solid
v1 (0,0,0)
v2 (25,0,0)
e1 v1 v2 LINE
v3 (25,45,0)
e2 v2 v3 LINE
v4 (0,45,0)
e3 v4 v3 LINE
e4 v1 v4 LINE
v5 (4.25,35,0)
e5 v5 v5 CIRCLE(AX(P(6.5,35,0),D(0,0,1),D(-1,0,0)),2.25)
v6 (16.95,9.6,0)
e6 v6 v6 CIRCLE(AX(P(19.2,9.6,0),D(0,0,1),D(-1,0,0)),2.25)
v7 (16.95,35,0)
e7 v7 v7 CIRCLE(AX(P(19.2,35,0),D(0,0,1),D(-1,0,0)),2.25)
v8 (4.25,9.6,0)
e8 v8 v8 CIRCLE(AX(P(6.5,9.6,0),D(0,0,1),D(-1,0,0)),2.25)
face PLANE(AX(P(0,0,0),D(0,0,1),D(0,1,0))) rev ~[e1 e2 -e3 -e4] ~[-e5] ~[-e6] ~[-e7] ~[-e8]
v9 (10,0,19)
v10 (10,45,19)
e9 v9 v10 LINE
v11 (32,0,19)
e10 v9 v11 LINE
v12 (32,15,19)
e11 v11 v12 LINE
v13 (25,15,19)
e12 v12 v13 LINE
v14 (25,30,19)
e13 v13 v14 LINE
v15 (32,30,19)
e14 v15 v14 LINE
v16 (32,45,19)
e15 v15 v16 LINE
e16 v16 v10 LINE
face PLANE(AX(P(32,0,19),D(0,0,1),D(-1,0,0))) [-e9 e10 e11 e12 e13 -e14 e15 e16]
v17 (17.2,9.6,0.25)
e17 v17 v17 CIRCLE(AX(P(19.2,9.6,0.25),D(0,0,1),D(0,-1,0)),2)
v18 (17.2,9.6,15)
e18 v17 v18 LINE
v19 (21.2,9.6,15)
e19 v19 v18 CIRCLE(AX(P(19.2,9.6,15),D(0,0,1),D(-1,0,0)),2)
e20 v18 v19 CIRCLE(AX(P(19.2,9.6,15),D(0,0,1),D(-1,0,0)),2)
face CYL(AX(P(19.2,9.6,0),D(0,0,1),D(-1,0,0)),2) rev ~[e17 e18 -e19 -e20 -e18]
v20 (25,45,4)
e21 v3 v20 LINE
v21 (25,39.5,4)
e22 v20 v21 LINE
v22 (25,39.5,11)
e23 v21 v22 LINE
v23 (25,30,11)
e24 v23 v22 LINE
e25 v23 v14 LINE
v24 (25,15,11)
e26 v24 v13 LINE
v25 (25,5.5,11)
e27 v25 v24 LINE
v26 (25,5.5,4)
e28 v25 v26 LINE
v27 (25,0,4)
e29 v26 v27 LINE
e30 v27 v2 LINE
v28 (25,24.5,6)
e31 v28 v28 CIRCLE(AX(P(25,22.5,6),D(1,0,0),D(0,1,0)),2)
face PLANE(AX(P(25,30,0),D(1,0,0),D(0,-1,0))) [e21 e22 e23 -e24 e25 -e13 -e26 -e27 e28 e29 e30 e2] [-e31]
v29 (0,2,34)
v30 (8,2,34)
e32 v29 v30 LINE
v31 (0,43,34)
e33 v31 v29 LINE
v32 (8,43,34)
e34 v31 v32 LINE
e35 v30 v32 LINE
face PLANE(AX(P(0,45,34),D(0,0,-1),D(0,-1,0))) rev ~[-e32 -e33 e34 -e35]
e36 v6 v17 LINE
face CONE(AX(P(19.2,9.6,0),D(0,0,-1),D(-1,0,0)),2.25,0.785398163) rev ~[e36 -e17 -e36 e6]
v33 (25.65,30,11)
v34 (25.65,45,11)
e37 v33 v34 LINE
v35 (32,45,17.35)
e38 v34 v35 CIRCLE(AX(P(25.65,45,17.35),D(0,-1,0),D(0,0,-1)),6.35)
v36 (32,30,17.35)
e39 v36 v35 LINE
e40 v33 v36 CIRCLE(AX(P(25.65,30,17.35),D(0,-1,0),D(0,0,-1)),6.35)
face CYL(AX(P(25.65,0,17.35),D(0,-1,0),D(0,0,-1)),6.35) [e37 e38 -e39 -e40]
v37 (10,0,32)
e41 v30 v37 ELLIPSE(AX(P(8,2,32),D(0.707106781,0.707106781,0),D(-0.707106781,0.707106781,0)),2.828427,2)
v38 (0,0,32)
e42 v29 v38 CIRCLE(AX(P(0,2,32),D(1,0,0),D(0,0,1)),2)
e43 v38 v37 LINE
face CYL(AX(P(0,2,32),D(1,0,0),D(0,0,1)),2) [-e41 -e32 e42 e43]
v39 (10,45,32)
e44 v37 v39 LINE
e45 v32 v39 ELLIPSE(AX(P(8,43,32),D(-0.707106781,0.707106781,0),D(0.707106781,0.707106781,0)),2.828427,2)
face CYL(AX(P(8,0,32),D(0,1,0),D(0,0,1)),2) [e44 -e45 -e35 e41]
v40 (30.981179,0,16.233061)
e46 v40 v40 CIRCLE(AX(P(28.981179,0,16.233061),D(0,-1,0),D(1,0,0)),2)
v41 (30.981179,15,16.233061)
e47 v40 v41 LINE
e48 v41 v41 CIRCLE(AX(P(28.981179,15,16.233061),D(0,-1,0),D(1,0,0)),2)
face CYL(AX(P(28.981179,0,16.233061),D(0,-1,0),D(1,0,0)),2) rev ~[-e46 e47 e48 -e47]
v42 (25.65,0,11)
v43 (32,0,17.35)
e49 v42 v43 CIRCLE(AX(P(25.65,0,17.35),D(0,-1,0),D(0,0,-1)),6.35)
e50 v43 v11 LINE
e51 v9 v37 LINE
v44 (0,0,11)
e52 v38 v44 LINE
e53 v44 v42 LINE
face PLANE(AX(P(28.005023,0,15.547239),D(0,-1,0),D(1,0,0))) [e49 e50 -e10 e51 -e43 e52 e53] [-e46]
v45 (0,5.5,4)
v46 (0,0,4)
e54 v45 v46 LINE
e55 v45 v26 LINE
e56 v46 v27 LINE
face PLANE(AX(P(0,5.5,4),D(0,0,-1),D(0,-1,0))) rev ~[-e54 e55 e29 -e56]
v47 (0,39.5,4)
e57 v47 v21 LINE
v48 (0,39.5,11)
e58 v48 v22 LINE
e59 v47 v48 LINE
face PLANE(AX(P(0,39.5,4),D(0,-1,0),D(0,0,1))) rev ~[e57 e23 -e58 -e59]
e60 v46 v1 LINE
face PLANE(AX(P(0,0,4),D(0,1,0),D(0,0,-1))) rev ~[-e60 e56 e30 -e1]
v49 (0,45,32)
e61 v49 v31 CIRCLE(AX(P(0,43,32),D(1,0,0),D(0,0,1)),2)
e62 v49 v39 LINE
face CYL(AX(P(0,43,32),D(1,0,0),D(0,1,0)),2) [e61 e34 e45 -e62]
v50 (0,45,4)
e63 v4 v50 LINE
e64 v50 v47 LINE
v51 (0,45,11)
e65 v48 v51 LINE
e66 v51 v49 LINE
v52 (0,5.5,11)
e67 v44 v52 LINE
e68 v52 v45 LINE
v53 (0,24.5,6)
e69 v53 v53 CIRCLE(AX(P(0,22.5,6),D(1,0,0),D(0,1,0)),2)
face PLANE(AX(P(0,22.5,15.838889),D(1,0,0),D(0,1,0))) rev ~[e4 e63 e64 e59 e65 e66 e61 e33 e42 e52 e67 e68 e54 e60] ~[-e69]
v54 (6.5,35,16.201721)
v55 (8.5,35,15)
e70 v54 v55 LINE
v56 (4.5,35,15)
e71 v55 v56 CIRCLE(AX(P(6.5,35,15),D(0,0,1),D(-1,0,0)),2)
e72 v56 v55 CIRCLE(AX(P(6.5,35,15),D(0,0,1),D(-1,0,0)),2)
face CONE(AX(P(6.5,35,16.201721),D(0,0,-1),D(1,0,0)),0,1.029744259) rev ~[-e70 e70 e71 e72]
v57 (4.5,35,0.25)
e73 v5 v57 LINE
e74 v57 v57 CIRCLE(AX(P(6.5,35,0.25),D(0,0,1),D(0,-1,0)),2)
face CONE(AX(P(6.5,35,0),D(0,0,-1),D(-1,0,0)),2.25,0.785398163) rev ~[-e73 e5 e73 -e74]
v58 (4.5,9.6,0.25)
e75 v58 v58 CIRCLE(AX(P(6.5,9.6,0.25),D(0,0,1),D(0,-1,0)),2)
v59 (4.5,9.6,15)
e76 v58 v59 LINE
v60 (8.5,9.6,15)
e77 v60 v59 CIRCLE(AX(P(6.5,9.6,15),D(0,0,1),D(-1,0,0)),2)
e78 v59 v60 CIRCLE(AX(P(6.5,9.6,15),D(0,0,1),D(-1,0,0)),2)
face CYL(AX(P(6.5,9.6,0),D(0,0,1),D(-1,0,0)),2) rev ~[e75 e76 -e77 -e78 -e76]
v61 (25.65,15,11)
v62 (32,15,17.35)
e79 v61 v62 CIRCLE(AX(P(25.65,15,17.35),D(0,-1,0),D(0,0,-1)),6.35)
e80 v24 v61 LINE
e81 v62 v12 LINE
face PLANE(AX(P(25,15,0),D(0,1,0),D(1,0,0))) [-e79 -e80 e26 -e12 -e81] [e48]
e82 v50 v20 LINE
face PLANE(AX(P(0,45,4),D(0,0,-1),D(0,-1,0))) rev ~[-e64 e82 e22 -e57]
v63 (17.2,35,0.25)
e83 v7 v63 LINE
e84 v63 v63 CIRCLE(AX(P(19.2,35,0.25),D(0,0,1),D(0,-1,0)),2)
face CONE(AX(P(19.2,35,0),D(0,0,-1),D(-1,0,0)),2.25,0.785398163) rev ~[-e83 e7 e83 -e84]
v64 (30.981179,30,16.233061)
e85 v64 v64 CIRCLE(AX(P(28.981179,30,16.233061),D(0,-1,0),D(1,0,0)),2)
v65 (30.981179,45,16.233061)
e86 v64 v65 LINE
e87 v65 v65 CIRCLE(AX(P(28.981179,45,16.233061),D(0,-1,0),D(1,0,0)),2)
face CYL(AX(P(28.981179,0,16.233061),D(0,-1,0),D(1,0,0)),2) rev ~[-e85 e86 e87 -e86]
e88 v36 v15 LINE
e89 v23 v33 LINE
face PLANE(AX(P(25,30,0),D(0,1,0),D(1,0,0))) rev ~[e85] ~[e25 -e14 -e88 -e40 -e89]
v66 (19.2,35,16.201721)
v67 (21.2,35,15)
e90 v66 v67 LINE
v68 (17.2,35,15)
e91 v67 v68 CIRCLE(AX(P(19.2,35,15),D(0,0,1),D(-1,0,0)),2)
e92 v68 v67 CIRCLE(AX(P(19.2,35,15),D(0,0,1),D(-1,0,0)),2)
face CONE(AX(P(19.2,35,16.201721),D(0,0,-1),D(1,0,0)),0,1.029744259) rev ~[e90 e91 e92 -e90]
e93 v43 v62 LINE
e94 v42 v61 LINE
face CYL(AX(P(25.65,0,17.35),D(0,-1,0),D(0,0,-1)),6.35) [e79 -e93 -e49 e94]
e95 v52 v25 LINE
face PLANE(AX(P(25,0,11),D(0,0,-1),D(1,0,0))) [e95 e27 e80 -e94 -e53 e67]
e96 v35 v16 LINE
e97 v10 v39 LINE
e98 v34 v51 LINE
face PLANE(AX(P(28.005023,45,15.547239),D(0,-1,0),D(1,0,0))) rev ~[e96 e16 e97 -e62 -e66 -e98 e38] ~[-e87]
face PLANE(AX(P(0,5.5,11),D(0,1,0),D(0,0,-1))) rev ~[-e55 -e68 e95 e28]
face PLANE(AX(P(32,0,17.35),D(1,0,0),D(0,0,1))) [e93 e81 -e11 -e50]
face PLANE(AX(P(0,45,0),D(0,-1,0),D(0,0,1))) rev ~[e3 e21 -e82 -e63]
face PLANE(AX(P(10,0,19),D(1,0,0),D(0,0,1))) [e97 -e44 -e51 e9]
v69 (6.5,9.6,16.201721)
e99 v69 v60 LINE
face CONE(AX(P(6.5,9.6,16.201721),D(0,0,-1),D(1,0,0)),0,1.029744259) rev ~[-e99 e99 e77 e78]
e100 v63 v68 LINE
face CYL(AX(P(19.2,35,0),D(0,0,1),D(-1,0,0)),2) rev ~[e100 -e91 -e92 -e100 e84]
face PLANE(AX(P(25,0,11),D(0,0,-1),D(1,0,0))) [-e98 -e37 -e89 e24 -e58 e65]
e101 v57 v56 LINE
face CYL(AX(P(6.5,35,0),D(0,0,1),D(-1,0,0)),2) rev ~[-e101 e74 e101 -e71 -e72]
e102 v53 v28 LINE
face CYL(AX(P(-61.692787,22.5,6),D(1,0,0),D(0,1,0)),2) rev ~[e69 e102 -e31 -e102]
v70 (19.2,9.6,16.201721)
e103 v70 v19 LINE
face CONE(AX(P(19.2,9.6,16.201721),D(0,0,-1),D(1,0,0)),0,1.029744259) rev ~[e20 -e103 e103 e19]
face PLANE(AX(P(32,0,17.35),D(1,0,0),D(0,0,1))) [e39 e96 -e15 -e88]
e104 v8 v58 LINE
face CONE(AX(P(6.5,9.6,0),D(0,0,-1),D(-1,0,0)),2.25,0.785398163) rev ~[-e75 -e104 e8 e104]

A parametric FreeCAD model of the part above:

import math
import FreeCAD as App
import Part
import Sketcher

V = App.Vector


def edges_at(feature, points):
    """Names of the edges that pass closest to the given points."""
    edges = feature.Shape.Edges
    near = lambda p: min(range(len(edges)), key=lambda i: edges[i].distToShape(Part.Vertex(*p))[0])
    return sorted({f"Edge{near(p) + 1}" for p in points})

doc = App.newDocument("Part")
params = doc.addObject("Spreadsheet::Sheet", "Params")
for row, (alias, value) in enumerate([
    ("sketch1_width", "45 mm"),
    ("sketch1_height", "4 mm"),
    ("sketch1_height2", "7 mm"),
    ("sketch1_height3", "23 mm"),
    ("sketch1_width2", "5.5 mm"),
    ("pad1_length", "25 mm"),
    ("sketch2_width", "15 mm"),
    ("fillet_radius", "2 mm"),
    ("sketch3_diameter", "4 mm"),
    ("hole_diameter", "4 mm"),
    ("sketch4_diameter", "4 mm"),
    ("hole2_diameter", "4 mm"),
    ("hole2_depth", "15 mm"),
    ("hole2_csink_diameter", "4.5 mm"),
    ("sketch5_diameter", "4 mm"),
    ("sketch5_width", "7 mm"),
    ("sketch5_height", "8 mm"),
    ("sketch5_radius", "6.35 mm"),
    ("pad2_length", "45 mm"),
    ("sketch6_height", "15 mm"),
    ("pocket2_length", "25.4 mm"),
], start=1):
    params.set(f"A{row}", alias)
    params.set(f"B{row}", "=" + value)
    params.setAlias(f"B{row}", alias)

body = doc.addObject("PartDesign::Body", "Body")

sketch1 = body.newObject("Sketcher::SketchObject", "Sketch")
sketch1.AttachmentSupport = (doc.getObject("YZ_Plane"), [""])
sketch1.MapMode = "FlatFace"
sketch1.addGeometry(Part.LineSegment(V(0, 4, 0), V(0, 0, 0)), False)
sketch1.addGeometry(Part.LineSegment(V(0, 0, 0), V(45, 0, 0)), False)
sketch1.addGeometry(Part.LineSegment(V(45, 0, 0), V(45, 4, 0)), False)
sketch1.addGeometry(Part.LineSegment(V(45, 4, 0), V(39.5, 4, 0)), False)
sketch1.addGeometry(Part.LineSegment(V(39.5, 4, 0), V(39.5, 11, 0)), False)
sketch1.addGeometry(Part.LineSegment(V(39.5, 11, 0), V(45, 11, 0)), False)
sketch1.addGeometry(Part.LineSegment(V(45, 11, 0), V(45, 34, 0)), False)
sketch1.addGeometry(Part.LineSegment(V(45, 34, 0), V(0, 34, 0)), False)
sketch1.addGeometry(Part.LineSegment(V(0, 34, 0), V(0, 11, 0)), False)
sketch1.addGeometry(Part.LineSegment(V(0, 11, 0), V(5.5, 11, 0)), False)
sketch1.addGeometry(Part.LineSegment(V(5.5, 11, 0), V(5.5, 4, 0)), False)
sketch1.addGeometry(Part.LineSegment(V(5.5, 4, 0), V(0, 4, 0)), False)
sketch1.addConstraint(Sketcher.Constraint("Coincident", 0, 2, 1, 1))
sketch1.addConstraint(Sketcher.Constraint("Coincident", 1, 2, 2, 1))
sketch1.addConstraint(Sketcher.Constraint("Coincident", 2, 2, 3, 1))
sketch1.addConstraint(Sketcher.Constraint("Coincident", 3, 2, 4, 1))
sketch1.addConstraint(Sketcher.Constraint("Coincident", 4, 2, 5, 1))
sketch1.addConstraint(Sketcher.Constraint("Coincident", 5, 2, 6, 1))
sketch1.addConstraint(Sketcher.Constraint("Coincident", 6, 2, 7, 1))
sketch1.addConstraint(Sketcher.Constraint("Coincident", 7, 2, 8, 1))
sketch1.addConstraint(Sketcher.Constraint("Coincident", 8, 2, 9, 1))
sketch1.addConstraint(Sketcher.Constraint("Coincident", 9, 2, 10, 1))
sketch1.addConstraint(Sketcher.Constraint("Coincident", 10, 2, 11, 1))
sketch1.addConstraint(Sketcher.Constraint("Coincident", 11, 2, 0, 1))
sketch1.addConstraint(Sketcher.Constraint("Vertical", 0))
sketch1.addConstraint(Sketcher.Constraint("Horizontal", 1))
sketch1.addConstraint(Sketcher.Constraint("Vertical", 2))
sketch1.addConstraint(Sketcher.Constraint("Horizontal", 3))
sketch1.addConstraint(Sketcher.Constraint("Vertical", 4))
sketch1.addConstraint(Sketcher.Constraint("Horizontal", 5))
sketch1.addConstraint(Sketcher.Constraint("Vertical", 6))
sketch1.addConstraint(Sketcher.Constraint("Horizontal", 7))
sketch1.addConstraint(Sketcher.Constraint("Vertical", 8))
sketch1.addConstraint(Sketcher.Constraint("Horizontal", 9))
sketch1.addConstraint(Sketcher.Constraint("Vertical", 10))
sketch1.addConstraint(Sketcher.Constraint("Horizontal", 11))
sketch1.addConstraint(Sketcher.Constraint("Coincident", 0, 2, -1, 1))
sketch1.addConstraint(Sketcher.Constraint("PointOnObject", 7, 2, -2))
sketch1.addConstraint(Sketcher.Constraint("Horizontal", 5, 2, 8, 2))
sketch1.addConstraint(Sketcher.Constraint("Horizontal", 3, 2, 10, 2))
sketch1.addConstraint(Sketcher.Constraint("Vertical", 2, 2, 5, 2))
sketch1.addConstraint(Sketcher.Constraint("Equal", 5, 9))
sketch1.addConstraint(Sketcher.Constraint("DistanceX", 1, 1, 1, 2, 45.0))
sketch1.addConstraint(Sketcher.Constraint("DistanceY", 0, 2, 0, 1, 4.0))
sketch1.addConstraint(Sketcher.Constraint("DistanceY", 4, 1, 4, 2, 7.0))
sketch1.addConstraint(Sketcher.Constraint("DistanceY", 6, 1, 6, 2, 23.0))
sketch1.addConstraint(Sketcher.Constraint("DistanceX", 3, 2, 3, 1, 5.5))
sketch1.setExpression("Constraints[30]", "Params.sketch1_width")
sketch1.setExpression("Constraints[31]", "Params.sketch1_height")
sketch1.setExpression("Constraints[32]", "Params.sketch1_height2")
sketch1.setExpression("Constraints[33]", "Params.sketch1_height3")
sketch1.setExpression("Constraints[34]", "Params.sketch1_width2")
pad1 = body.newObject("PartDesign::Pad", "Pad")
pad1.Profile = sketch1
pad1.setExpression("Length", "Params.pad1_length")

sketch2 = body.newObject("Sketcher::SketchObject", "Sketch001")
sketch2.AttachmentSupport = (doc.getObject("XZ_Plane"), [""])
sketch2.MapMode = "FlatFace"
sketch2.addGeometry(Part.LineSegment(V(10, 34, 0), V(10, 19, 0)), False)
sketch2.addGeometry(Part.LineSegment(V(10, 19, 0), V(25, 19, 0)), False)
sketch2.addGeometry(Part.LineSegment(V(25, 19, 0), V(25, 34, 0)), False)
sketch2.addGeometry(Part.LineSegment(V(25, 34, 0), V(10, 34, 0)), False)
sketch2.addConstraint(Sketcher.Constraint("Coincident", 0, 2, 1, 1))
sketch2.addConstraint(Sketcher.Constraint("Coincident", 1, 2, 2, 1))
sketch2.addConstraint(Sketcher.Constraint("Coincident", 2, 2, 3, 1))
sketch2.addConstraint(Sketcher.Constraint("Coincident", 3, 2, 0, 1))
sketch2.addConstraint(Sketcher.Constraint("Vertical", 0))
sketch2.addConstraint(Sketcher.Constraint("Horizontal", 1))
sketch2.addConstraint(Sketcher.Constraint("Vertical", 2))
sketch2.addConstraint(Sketcher.Constraint("Horizontal", 3))
sketch2.addConstraint(Sketcher.Constraint("Equal", 3, 0))
sketch2.addConstraint(Sketcher.Constraint("DistanceX", 1, 1, 1, 2, 15.0))
sketch2.addConstraint(Sketcher.Constraint("DistanceX", -1, 1, 0, 2, 10.0))
sketch2.addConstraint(Sketcher.Constraint("DistanceY", -1, 1, 0, 2, 19.0))
sketch2.setExpression("Constraints[9]", "Params.sketch2_width")
pocket1 = body.newObject("PartDesign::Pocket", "Pocket")
pocket1.Profile = sketch2
pocket1.Type = "ThroughAll"
doc.recompute()

fillet = body.newObject("PartDesign::Fillet", "Fillet")
fillet.Base = (pocket1, edges_at(pocket1, [(10, 22.5, 34), (5, 0, 34), (5, 45, 34)]))
fillet.setExpression("Radius", "Params.fillet_radius")

sketch3 = body.newObject("Sketcher::SketchObject", "Sketch002")
sketch3.AttachmentSupport = (doc.getObject("YZ_Plane"), [""])
sketch3.MapMode = "FlatFace"
sketch3.addGeometry(Part.Circle(V(22.5, 6, 0), V(0, 0, 1), 2), False)
sketch3.addConstraint(Sketcher.Constraint("Diameter", 0, 4.0))
sketch3.addConstraint(Sketcher.Constraint("DistanceY", -1, 1, 0, 3, 6.0))
sketch3.addConstraint(Sketcher.Constraint("DistanceX", -1, 1, 0, 3, 22.5))
sketch3.setExpression("Constraints[0]", "Params.sketch3_diameter")
doc.recompute()
hole = body.newObject("PartDesign::Hole", "Hole")
hole.Profile = sketch3
hole.ThreadType = "None"
hole.setExpression("Diameter", "Params.hole_diameter")
hole.DepthType = "ThroughAll"
hole.Reversed = True

sketch4 = body.newObject("Sketcher::SketchObject", "Sketch003")
sketch4.AttachmentSupport = (doc.getObject("XY_Plane"), [""])
sketch4.MapMode = "FlatFace"
sketch4.addGeometry(Part.Circle(V(19.2, 9.6, 0), V(0, 0, 1), 2), False)
sketch4.addGeometry(Part.Circle(V(6.5, 9.6, 0), V(0, 0, 1), 2), False)
sketch4.addGeometry(Part.Circle(V(6.5, 35, 0), V(0, 0, 1), 2), False)
sketch4.addGeometry(Part.Circle(V(19.2, 35, 0), V(0, 0, 1), 2), False)
sketch4.addConstraint(Sketcher.Constraint("Equal", 0, 1))
sketch4.addConstraint(Sketcher.Constraint("Equal", 1, 2))
sketch4.addConstraint(Sketcher.Constraint("Equal", 2, 3))
sketch4.addConstraint(Sketcher.Constraint("Horizontal", 0, 3, 1, 3))
sketch4.addConstraint(Sketcher.Constraint("Horizontal", 2, 3, 3, 3))
sketch4.addConstraint(Sketcher.Constraint("Vertical", 1, 3, 2, 3))
sketch4.addConstraint(Sketcher.Constraint("Vertical", 0, 3, 3, 3))
sketch4.addConstraint(Sketcher.Constraint("Diameter", 0, 4.0))
sketch4.addConstraint(Sketcher.Constraint("DistanceY", -1, 1, 2, 3, 35.0))
sketch4.addConstraint(Sketcher.Constraint("DistanceX", -1, 1, 0, 3, 19.2))
sketch4.addConstraint(Sketcher.Constraint("DistanceY", -1, 1, 0, 3, 9.6))
sketch4.addConstraint(Sketcher.Constraint("DistanceX", -1, 1, 1, 3, 6.5))
sketch4.setExpression("Constraints[7]", "Params.sketch4_diameter")
doc.recompute()
hole2 = body.newObject("PartDesign::Hole", "Hole001")
hole2.Profile = sketch4
hole2.ThreadType = "None"
hole2.setExpression("Diameter", "Params.hole2_diameter")
hole2.DepthType = "Dimension"
hole2.setExpression("Depth", "Params.hole2_depth")
hole2.DrillPoint = "Angled"
hole2.DrillPointAngle = 118
hole2.HoleCutType = "Countersink"
hole2.setExpression("HoleCutDiameter", "Params.hole2_csink_diameter")
hole2.HoleCutCountersinkAngle = 90
hole2.Reversed = True

sketch5 = body.newObject("Sketcher::SketchObject", "Sketch004")
sketch5.AttachmentSupport = (doc.getObject("XZ_Plane"), [""])
sketch5.MapMode = "FlatFace"
sketch5.addGeometry(Part.LineSegment(V(32, 19, 0), V(25, 19, 0)), False)
sketch5.addGeometry(Part.LineSegment(V(25, 19, 0), V(25, 11, 0)), False)
sketch5.addGeometry(Part.LineSegment(V(25, 11, 0), V(25.6, 11, 0)), False)
sketch5.addGeometry(Part.ArcOfCircle(Part.Circle(V(25.6, 17.4, 0), V(0, 0, 1), 6.3), math.radians(-90), math.radians(0)), False)
sketch5.addGeometry(Part.LineSegment(V(32, 17.4, 0), V(32, 19, 0)), False)
sketch5.addGeometry(Part.Circle(V(29, 16.2, 0), V(0, 0, 1), 2), False)
sketch5.addConstraint(Sketcher.Constraint("Coincident", 0, 2, 1, 1))
sketch5.addConstraint(Sketcher.Constraint("Coincident", 1, 2, 2, 1))
sketch5.addConstraint(Sketcher.Constraint("Tangent", 2, 2, 3, 1))
sketch5.addConstraint(Sketcher.Constraint("Tangent", 3, 2, 4, 1))
sketch5.addConstraint(Sketcher.Constraint("Coincident", 4, 2, 0, 1))
sketch5.addConstraint(Sketcher.Constraint("Horizontal", 0))
sketch5.addConstraint(Sketcher.Constraint("Vertical", 1))
sketch5.addConstraint(Sketcher.Constraint("Horizontal", 2))
sketch5.addConstraint(Sketcher.Constraint("Vertical", 4))
sketch5.addConstraint(Sketcher.Constraint("Diameter", 5, 4.0))
sketch5.addConstraint(Sketcher.Constraint("DistanceX", 0, 2, 0, 1, 7.0))
sketch5.addConstraint(Sketcher.Constraint("DistanceY", 1, 2, 1, 1, 8.0))
sketch5.addConstraint(Sketcher.Constraint("Radius", 3, 6.35))
sketch5.addConstraint(Sketcher.Constraint("DistanceX", -1, 1, 0, 2, 25.0))
sketch5.addConstraint(Sketcher.Constraint("DistanceY", -1, 1, 0, 2, 19.0))
sketch5.addConstraint(Sketcher.Constraint("DistanceX", -1, 1, 5, 3, 28.981179))
sketch5.addConstraint(Sketcher.Constraint("DistanceY", -1, 1, 5, 3, 16.233061))
sketch5.setExpression("Constraints[9]", "Params.sketch5_diameter")
sketch5.setExpression("Constraints[10]", "Params.sketch5_width")
sketch5.setExpression("Constraints[11]", "Params.sketch5_height")
sketch5.setExpression("Constraints[12]", "Params.sketch5_radius")
pad2 = body.newObject("PartDesign::Pad", "Pad001")
pad2.Profile = sketch5
pad2.setExpression("Length", "Params.pad2_length")
pad2.Reversed = True

sketch6 = body.newObject("Sketcher::SketchObject", "Sketch005")
sketch6.AttachmentSupport = (doc.getObject("XY_Plane"), [""])
sketch6.MapMode = "FlatFace"
sketch6.addGeometry(Part.LineSegment(V(25, 15, 0), V(25, 30, 0)), False)
sketch6.addGeometry(Part.LineSegment(V(25, 30, 0), V(39, 30, 0)), False)
sketch6.addGeometry(Part.LineSegment(V(39, 30, 0), V(39, 15, 0)), False)
sketch6.addGeometry(Part.LineSegment(V(39, 15, 0), V(25, 15, 0)), False)
sketch6.addConstraint(Sketcher.Constraint("Coincident", 0, 2, 1, 1))
sketch6.addConstraint(Sketcher.Constraint("Coincident", 1, 2, 2, 1))
sketch6.addConstraint(Sketcher.Constraint("Coincident", 2, 2, 3, 1))
sketch6.addConstraint(Sketcher.Constraint("Coincident", 3, 2, 0, 1))
sketch6.addConstraint(Sketcher.Constraint("Vertical", 0))
sketch6.addConstraint(Sketcher.Constraint("Horizontal", 1))
sketch6.addConstraint(Sketcher.Constraint("Vertical", 2))
sketch6.addConstraint(Sketcher.Constraint("Horizontal", 3))
sketch6.addConstraint(Sketcher.Constraint("DistanceY", 0, 1, 0, 2, 15.0))
sketch6.addConstraint(Sketcher.Constraint("DistanceX", -1, 1, 0, 2, 25.0))
sketch6.addConstraint(Sketcher.Constraint("DistanceY", -1, 1, 0, 2, 30.0))
sketch6.addConstraint(Sketcher.Constraint("DistanceX", 1, 1, 1, 2, 13.585997))
sketch6.setExpression("Constraints[8]", "Params.sketch6_height")
pocket2 = body.newObject("PartDesign::Pocket", "Pocket001")
pocket2.Profile = sketch6
pocket2.setExpression("Length", "Params.pocket2_length")
pocket2.Reversed = True

doc.recompute()
